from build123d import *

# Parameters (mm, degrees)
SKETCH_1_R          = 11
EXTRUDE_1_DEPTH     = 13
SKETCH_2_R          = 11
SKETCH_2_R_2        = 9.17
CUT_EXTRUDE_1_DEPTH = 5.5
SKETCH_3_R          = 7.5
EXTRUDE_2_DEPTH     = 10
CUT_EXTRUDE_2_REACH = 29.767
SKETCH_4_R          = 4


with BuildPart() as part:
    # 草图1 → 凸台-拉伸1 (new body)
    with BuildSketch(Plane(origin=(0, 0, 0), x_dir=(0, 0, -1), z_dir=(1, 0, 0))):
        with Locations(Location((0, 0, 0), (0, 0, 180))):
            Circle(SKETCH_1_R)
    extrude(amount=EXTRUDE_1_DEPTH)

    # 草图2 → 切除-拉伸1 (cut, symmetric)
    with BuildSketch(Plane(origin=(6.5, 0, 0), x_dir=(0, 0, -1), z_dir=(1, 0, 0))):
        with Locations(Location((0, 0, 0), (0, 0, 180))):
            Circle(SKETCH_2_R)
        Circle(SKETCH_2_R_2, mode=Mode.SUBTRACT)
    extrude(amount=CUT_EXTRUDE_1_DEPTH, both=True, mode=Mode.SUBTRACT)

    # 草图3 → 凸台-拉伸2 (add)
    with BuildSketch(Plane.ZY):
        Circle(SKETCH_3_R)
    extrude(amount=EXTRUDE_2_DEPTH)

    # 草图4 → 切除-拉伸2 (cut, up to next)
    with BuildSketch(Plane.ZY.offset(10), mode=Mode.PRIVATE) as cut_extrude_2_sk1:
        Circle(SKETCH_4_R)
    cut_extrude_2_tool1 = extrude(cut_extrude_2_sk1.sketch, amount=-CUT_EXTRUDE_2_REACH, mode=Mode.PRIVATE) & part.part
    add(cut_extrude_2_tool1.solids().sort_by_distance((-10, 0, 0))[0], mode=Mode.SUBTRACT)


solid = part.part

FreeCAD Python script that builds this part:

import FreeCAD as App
import Part
import Sketcher

V = App.Vector
Q = App.Units.Quantity

doc = App.newDocument("Part")
body = doc.addObject("PartDesign::Body", "Body")

# Sketch on YZ plane
sketch1 = doc.addObject("Sketcher::SketchObject", "Sketch")
body.addObject(sketch1)
sketch1.AttachmentSupport = (doc.YZ_Plane, [""])
sketch1.MapMode = "FlatFace"
sketch1.addGeometry(Part.Circle(V(0, 0, 0), V(0, 0, 1), 11), False)
sketch1.addConstraint([
    Sketcher.Constraint("Coincident", 0, 3, -1, 1),
    Sketcher.Constraint("Diameter", 0, Q("22 mm")),
])
pad1 = doc.addObject("PartDesign::Pad", "Pad")
body.addObject(pad1)
pad1.Profile = sketch1
pad1.Length = 13

# Sketch on YZ plane
sketch2 = doc.addObject("Sketcher::SketchObject", "Sketch001")
body.addObject(sketch2)
sketch2.AttachmentSupport = (doc.YZ_Plane, [""])
sketch2.MapMode = "FlatFace"
sketch2.AttachmentOffset = App.Placement(V(0, 0, 6.5), App.Rotation())
sketch2.addGeometry([
    Part.Circle(V(0, 0, 0), V(0, 0, 1), 11),
    Part.Circle(V(0, 0, 0), V(0, 0, 1), 9),
], False)
sketch2.addConstraint([
    Sketcher.Constraint("Coincident", 0, 3, -1, 1),
    Sketcher.Constraint("Coincident", 1, 3, -1, 1),
    Sketcher.Constraint("Diameter", 0, Q("22 mm")),
    Sketcher.Constraint("Diameter", 1, Q("18.34 mm")),
])
pocket1 = doc.addObject("PartDesign::Pocket", "Pocket")
body.addObject(pocket1)
pocket1.Profile = sketch2
pocket1.Length = 11
pocket1.Midplane = True

# Sketch on YZ plane
sketch3 = doc.addObject("Sketcher::SketchObject", "Sketch002")
body.addObject(sketch3)
sketch3.AttachmentSupport = (doc.YZ_Plane, [""])
sketch3.MapMode = "FlatFace"
sketch3.addGeometry(Part.Circle(V(0, 0, 0), V(0, 0, 1), 8), False)
sketch3.addConstraint([
    Sketcher.Constraint("Coincident", 0, 3, -1, 1),
    Sketcher.Constraint("Diameter", 0, Q("15 mm")),
])
pad2 = doc.addObject("PartDesign::Pad", "Pad001")
body.addObject(pad2)
pad2.Profile = sketch3
pad2.Length = 10
pad2.Reversed = True

# Sketch on YZ plane
sketch4 = doc.addObject("Sketcher::SketchObject", "Sketch003")
body.addObject(sketch4)
sketch4.AttachmentSupport = (doc.YZ_Plane, [""])
sketch4.MapMode = "FlatFace"
sketch4.AttachmentOffset = App.Placement(V(0, 0, -10), App.Rotation())
sketch4.addGeometry(Part.Circle(V(0, 0, 0), V(0, 0, 1), 4), False)
sketch4.addConstraint([
    Sketcher.Constraint("Coincident", 0, 3, -1, 1),
    Sketcher.Constraint("Diameter", 0, Q("8 mm")),
])
pocket2 = doc.addObject("PartDesign::Pocket", "Pocket001")
body.addObject(pocket2)
pocket2.Profile = sketch4
pocket2.Type = "UpToFirst"
pocket2.Reversed = True

doc.recompute()
